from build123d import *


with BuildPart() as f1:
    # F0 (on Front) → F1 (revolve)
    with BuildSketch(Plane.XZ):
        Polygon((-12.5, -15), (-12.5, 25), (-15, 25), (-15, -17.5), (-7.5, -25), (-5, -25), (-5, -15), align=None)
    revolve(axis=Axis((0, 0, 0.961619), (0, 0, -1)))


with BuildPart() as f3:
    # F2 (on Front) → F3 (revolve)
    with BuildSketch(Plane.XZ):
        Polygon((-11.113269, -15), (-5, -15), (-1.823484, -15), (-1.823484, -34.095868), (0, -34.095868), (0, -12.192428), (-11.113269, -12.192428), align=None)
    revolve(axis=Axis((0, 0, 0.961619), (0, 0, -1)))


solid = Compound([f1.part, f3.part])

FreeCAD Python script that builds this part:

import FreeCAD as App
import Part
import Sketcher
Q = App.Units.Quantity

doc = App.newDocument("Part")
body = doc.addObject("PartDesign::Body", "Body")

# Sketch on XZ plane
sketch1 = body.newObject("Sketcher::SketchObject", "Sketch")
sketch1.AttachmentSupport = (doc.getObject("XZ_Plane"), [""])
sketch1.MapMode = "FlatFace"
sketch1.addGeometry([
    Part.LineSegment(App.Vector(-12.5, -15, 0), App.Vector(-12.5, 25, 0)),  # 0
    Part.LineSegment(App.Vector(-12.5, 25, 0), App.Vector(-15, 25, 0)),  # 1
    Part.LineSegment(App.Vector(-15, 25, 0), App.Vector(-15, -17.5, 0)),  # 2
    Part.LineSegment(App.Vector(-15, -17.5, 0), App.Vector(-7.5, -25, 0)),  # 3
    Part.LineSegment(App.Vector(-7.5, -25, 0), App.Vector(-5, -25, 0)),  # 4
    Part.LineSegment(App.Vector(-5, -25, 0), App.Vector(-5, -15, 0)),  # 5
    Part.LineSegment(App.Vector(-5, -15, 0), App.Vector(-12.5, -15, 0)),  # 6
], False)
sketch1.addConstraint([
    Sketcher.Constraint("Coincident", 0, 2, 1, 1),
    Sketcher.Constraint("Coincident", 1, 2, 2, 1),
    Sketcher.Constraint("Coincident", 2, 2, 3, 1),
    Sketcher.Constraint("Coincident", 3, 2, 4, 1),
    Sketcher.Constraint("Coincident", 4, 2, 5, 1),
    Sketcher.Constraint("Coincident", 5, 2, 6, 1),
    Sketcher.Constraint("Coincident", 6, 2, 0, 1),
    Sketcher.Constraint("Vertical", 0),
    Sketcher.Constraint("Horizontal", 1),
    Sketcher.Constraint("Vertical", 2),
    Sketcher.Constraint("Horizontal", 4),
    Sketcher.Constraint("Vertical", 5),
    Sketcher.Constraint("Horizontal", 6),
    Sketcher.Constraint("Equal", 1, 4),
    Sketcher.Constraint("DistanceY", 0, 1, 0, 2, Q("40 mm")),
    Sketcher.Constraint("DistanceY", 5, 1, 5, 2, Q("10 mm")),
    Sketcher.Constraint("Angle", 3, Q("-45 deg")),
    Sketcher.Constraint("DistanceX", 1, 2, 1, 1, Q("2.5 mm")),
    Sketcher.Constraint("DistanceX", 6, 2, 6, 1, Q("7.5 mm")),
    Sketcher.Constraint("DistanceY", -1, 1, 0, 2, Q("25 mm")),
    Sketcher.Constraint("DistanceX", 1, 2, -1, 1, Q("15 mm")),
])
revolution = body.newObject("PartDesign::Revolution", "Revolution")
revolution.Profile = sketch1
revolution.ReferenceAxis = (sketch1, ["V_Axis"])
revolution.Angle = 360
body2 = doc.addObject("PartDesign::Body", "Body001")

# Sketch on XZ plane
sketch2 = body2.newObject("Sketcher::SketchObject", "Sketch001")
sketch2.AttachmentSupport = (doc.getObject("XZ_Plane001"), [""])
sketch2.MapMode = "FlatFace"
sketch2.addGeometry([
    Part.LineSegment(App.Vector(-11.1, -15, 0), App.Vector(-1.8, -15, 0)),  # 0
    Part.LineSegment(App.Vector(-1.8, -15, 0), App.Vector(-1.8, -34.1, 0)),  # 1
    Part.LineSegment(App.Vector(-1.8, -34.1, 0), App.Vector(0, -34.1, 0)),  # 2
    Part.LineSegment(App.Vector(0, -34.1, 0), App.Vector(0, -12.2, 0)),  # 3
    Part.LineSegment(App.Vector(0, -12.2, 0), App.Vector(-11.1, -12.2, 0)),  # 4
    Part.LineSegment(App.Vector(-11.1, -12.2, 0), App.Vector(-11.1, -15, 0)),  # 5
], False)
sketch2.addConstraint([
    Sketcher.Constraint("Coincident", 0, 2, 1, 1),
    Sketcher.Constraint("Coincident", 1, 2, 2, 1),
    Sketcher.Constraint("Coincident", 2, 2, 3, 1),
    Sketcher.Constraint("Coincident", 3, 2, 4, 1),
    Sketcher.Constraint("Coincident", 4, 2, 5, 1),
    Sketcher.Constraint("Coincident", 5, 2, 0, 1),
    Sketcher.Constraint("Horizontal", 0),
    Sketcher.Constraint("Vertical", 1),
    Sketcher.Constraint("Horizontal", 2),
    Sketcher.Constraint("Vertical", 3),
    Sketcher.Constraint("Horizontal", 4),
    Sketcher.Constraint("Vertical", 5),
    Sketcher.Constraint("PointOnObject", 2, 2, -2),
    Sketcher.Constraint("DistanceY", 0, 2, -1, 1, Q("15 mm")),
    Sketcher.Constraint("DistanceX", 4, 2, 4, 1, Q("11.113269 mm")),
    Sketcher.Constraint("DistanceY", 1, 2, 1, 1, Q("19.095868 mm")),
    Sketcher.Constraint("DistanceY", 3, 1, 3, 2, Q("21.90344 mm")),
    Sketcher.Constraint("DistanceX", 0, 1, 0, 2, Q("9.289785 mm")),
])
revolution2 = body2.newObject("PartDesign::Revolution", "Revolution001")
revolution2.Profile = sketch2
revolution2.ReferenceAxis = (sketch2, ["V_Axis"])
revolution2.Angle = 360

doc.recompute()
